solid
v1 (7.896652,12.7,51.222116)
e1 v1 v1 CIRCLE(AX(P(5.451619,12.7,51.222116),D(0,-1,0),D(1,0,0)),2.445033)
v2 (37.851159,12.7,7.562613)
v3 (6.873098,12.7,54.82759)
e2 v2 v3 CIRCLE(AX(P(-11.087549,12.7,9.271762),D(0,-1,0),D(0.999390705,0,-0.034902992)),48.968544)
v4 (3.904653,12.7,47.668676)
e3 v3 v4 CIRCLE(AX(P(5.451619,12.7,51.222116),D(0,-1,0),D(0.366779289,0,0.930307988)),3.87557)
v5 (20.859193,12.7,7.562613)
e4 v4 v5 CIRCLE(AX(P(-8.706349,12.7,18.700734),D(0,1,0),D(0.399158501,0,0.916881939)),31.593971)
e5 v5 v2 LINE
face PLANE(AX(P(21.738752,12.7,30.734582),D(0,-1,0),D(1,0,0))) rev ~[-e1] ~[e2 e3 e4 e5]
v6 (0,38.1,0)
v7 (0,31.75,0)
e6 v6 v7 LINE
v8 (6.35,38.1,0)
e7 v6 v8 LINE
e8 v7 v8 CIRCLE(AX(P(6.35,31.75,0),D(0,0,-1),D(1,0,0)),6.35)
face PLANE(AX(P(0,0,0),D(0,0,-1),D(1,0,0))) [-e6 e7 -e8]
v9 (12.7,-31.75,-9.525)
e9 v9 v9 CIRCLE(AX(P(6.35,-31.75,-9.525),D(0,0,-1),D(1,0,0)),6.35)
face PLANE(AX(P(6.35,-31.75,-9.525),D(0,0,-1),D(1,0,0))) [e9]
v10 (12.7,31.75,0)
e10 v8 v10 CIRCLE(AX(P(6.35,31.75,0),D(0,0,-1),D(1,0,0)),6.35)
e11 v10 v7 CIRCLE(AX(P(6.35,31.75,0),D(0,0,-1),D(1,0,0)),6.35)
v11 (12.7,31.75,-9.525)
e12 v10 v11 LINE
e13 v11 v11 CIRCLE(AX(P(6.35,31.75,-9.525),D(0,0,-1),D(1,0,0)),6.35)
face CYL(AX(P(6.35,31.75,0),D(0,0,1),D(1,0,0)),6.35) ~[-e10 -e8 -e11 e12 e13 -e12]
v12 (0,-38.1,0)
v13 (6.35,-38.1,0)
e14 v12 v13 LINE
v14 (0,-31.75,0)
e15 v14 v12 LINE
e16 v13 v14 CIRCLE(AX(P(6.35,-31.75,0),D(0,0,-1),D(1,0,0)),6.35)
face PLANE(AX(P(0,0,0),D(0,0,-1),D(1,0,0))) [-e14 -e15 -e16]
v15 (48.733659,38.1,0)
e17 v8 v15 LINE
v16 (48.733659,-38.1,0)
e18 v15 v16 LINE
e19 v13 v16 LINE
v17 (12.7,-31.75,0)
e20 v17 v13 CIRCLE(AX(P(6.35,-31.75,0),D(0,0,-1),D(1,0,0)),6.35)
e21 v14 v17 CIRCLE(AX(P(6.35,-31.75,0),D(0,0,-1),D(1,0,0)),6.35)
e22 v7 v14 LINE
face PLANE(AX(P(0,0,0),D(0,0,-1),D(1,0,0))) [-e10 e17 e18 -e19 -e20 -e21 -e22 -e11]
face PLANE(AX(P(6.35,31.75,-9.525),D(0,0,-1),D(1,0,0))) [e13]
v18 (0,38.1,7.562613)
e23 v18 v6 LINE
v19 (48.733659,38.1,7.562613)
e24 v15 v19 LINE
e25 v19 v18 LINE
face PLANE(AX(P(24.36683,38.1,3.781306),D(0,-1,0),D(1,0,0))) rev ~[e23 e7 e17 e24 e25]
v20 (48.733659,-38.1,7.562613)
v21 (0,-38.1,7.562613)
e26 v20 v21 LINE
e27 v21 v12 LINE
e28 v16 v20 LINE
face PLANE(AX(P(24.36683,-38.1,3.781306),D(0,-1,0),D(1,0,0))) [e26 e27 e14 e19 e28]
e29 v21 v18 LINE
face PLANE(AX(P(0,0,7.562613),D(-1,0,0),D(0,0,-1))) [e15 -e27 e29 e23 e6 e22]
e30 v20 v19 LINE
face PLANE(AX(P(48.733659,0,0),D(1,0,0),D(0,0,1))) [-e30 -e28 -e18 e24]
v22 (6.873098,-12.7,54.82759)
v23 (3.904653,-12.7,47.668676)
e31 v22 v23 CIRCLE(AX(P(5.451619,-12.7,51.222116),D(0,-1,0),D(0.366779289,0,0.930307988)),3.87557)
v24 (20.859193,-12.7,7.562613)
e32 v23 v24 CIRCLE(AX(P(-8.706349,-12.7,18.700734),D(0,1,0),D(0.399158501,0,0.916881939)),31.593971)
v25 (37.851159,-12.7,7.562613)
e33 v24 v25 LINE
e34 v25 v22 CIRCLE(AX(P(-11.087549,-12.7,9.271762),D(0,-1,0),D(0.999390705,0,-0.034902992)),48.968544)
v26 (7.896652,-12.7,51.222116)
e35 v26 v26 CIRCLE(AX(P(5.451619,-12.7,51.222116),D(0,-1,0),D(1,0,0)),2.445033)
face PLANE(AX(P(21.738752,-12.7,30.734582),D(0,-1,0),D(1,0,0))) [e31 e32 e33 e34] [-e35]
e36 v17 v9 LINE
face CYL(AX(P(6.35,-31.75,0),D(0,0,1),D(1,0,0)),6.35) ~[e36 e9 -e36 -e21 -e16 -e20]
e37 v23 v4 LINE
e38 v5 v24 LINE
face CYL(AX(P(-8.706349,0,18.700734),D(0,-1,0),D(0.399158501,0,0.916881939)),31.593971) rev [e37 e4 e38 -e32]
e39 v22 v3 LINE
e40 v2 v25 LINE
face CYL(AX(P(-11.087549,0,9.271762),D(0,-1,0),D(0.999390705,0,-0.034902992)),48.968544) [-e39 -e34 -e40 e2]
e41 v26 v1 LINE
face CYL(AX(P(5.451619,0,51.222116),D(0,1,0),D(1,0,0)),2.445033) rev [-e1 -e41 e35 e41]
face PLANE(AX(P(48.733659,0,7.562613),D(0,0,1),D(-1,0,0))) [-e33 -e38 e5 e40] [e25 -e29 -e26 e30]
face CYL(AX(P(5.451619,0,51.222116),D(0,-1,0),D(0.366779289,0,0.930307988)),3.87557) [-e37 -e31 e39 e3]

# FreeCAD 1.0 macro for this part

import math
import FreeCAD as App
import Part
import Sketcher
Q = App.Units.Quantity

doc = App.newDocument("Part")
body = doc.addObject("PartDesign::Body", "Body")

sketch1 = body.newObject("Sketcher::SketchObject", "Sketch")
sketch1.AttachmentSupport = (doc.getObject("XZ_Plane"), [""])
sketch1.MapMode = "FlatFace"
sketch1.addGeometry(Part.LineSegment(App.Vector(0, 8, 0), App.Vector(0, 0, 0)), False)
sketch1.addGeometry(Part.LineSegment(App.Vector(0, 0, 0), App.Vector(49, 0, 0)), False)
sketch1.addGeometry(Part.LineSegment(App.Vector(49, 0, 0), App.Vector(49, 8, 0)), False)
sketch1.addGeometry(Part.LineSegment(App.Vector(49, 8, 0), App.Vector(0, 8, 0)), False)
sketch1.addConstraint(Sketcher.Constraint("Coincident", 0, 2, 1, 1))
sketch1.addConstraint(Sketcher.Constraint("Coincident", 1, 2, 2, 1))
sketch1.addConstraint(Sketcher.Constraint("Coincident", 2, 2, 3, 1))
sketch1.addConstraint(Sketcher.Constraint("Coincident", 3, 2, 0, 1))
sketch1.addConstraint(Sketcher.Constraint("Vertical", 0))
sketch1.addConstraint(Sketcher.Constraint("Horizontal", 1))
sketch1.addConstraint(Sketcher.Constraint("Vertical", 2))
sketch1.addConstraint(Sketcher.Constraint("Horizontal", 3))
sketch1.addConstraint(Sketcher.Constraint("Coincident", 0, 2, -1, 1))
sketch1.addConstraint(Sketcher.Constraint("DistanceX", 1, 1, 1, 2, 48.733659))
sketch1.addConstraint(Sketcher.Constraint("DistanceY", 0, 2, 0, 1, 7.562613))
pad1 = body.newObject("PartDesign::Pad", "Pad")
pad1.Profile = sketch1
pad1.Length = Q("3 in")
pad1.Midplane = True

sketch2 = body.newObject("Sketcher::SketchObject", "Sketch001")
sketch2.AttachmentSupport = (doc.getObject("XZ_Plane"), [""])
sketch2.MapMode = "FlatFace"
sketch2.addGeometry(Part.ArcOfCircle(Part.Circle(App.Vector(-8.7, 18.7, 0), App.Vector(0, 0, 1), 31.6), math.radians(-21), math.radians(66)), False)
sketch2.addGeometry(Part.LineSegment(App.Vector(20.9, 7.6, 0), App.Vector(37.9, 7.6, 0)), False)
sketch2.addGeometry(Part.ArcOfCircle(Part.Circle(App.Vector(-11.1, 9.3, 0), App.Vector(0, 0, 1), 49), math.radians(-2), math.radians(68)), False)
sketch2.addGeometry(Part.ArcOfCircle(Part.Circle(App.Vector(5.5, 51.2, 0), App.Vector(0, 0, 1), 3.9), math.radians(68), math.radians(246)), False)
sketch2.addGeometry(Part.Circle(App.Vector(5.5, 51.2, 0), App.Vector(0, 0, 1), 2.4), False)
sketch2.addConstraint(Sketcher.Constraint("Coincident", 0, 1, 1, 1))
sketch2.addConstraint(Sketcher.Constraint("Coincident", 1, 2, 2, 1))
sketch2.addConstraint(Sketcher.Constraint("Tangent", 2, 2, 3, 1))
sketch2.addConstraint(Sketcher.Constraint("Tangent", 3, 2, 0, 2))
sketch2.addConstraint(Sketcher.Constraint("Horizontal", 1))
sketch2.addConstraint(Sketcher.Constraint("Coincident", 4, 3, 3, 3))
sketch2.addConstraint(Sketcher.Constraint("Radius", 0, 31.593971))
sketch2.addConstraint(Sketcher.Constraint("Radius", 3, 3.87557))
sketch2.addConstraint(Sketcher.Constraint("Diameter", 4, 4.890066))
sketch2.addConstraint(Sketcher.Constraint("Radius", 2, 48.968544))
sketch2.addConstraint(Sketcher.Constraint("DistanceX", -1, 1, 2, 2, 6.873098))
sketch2.addConstraint(Sketcher.Constraint("DistanceX", 2, 3, 0, 3, 2.3812))
sketch2.addConstraint(Sketcher.Constraint("DistanceX", 1, 1, 1, 2, 16.991966))
sketch2.addConstraint(Sketcher.Constraint("DistanceX", 0, 3, -1, 1, 8.706349))
sketch2.addConstraint(Sketcher.Constraint("DistanceY", -1, 1, 2, 3, 9.271762))
pad2 = body.newObject("PartDesign::Pad", "Pad001")
pad2.Profile = sketch2
pad2.Length = Q("1 in")
pad2.Midplane = True

sketch3 = body.newObject("Sketcher::SketchObject", "Sketch002")
sketch3.AttachmentSupport = (doc.getObject("XY_Plane"), [""])
sketch3.MapMode = "FlatFace"
sketch3.addGeometry(Part.Circle(App.Vector(6, 32, 0), App.Vector(0, 0, 1), 6), False)
sketch3.addGeometry(Part.Circle(App.Vector(6, -32, 0), App.Vector(0, 0, 1), 6), False)
sketch3.addConstraint(Sketcher.Constraint("Equal", 0, 1))
sketch3.addConstraint(Sketcher.Constraint("Symmetric", 0, 3, 1, 3, -1))
sketch3.addConstraint(Sketcher.Constraint("Diameter", 0, Q("0.5 in")))
sketch3.addConstraint(Sketcher.Constraint("DistanceY", 1, 3, 0, 3, Q("2.5 in")))
sketch3.addConstraint(Sketcher.Constraint("DistanceX", -1, 1, 0, 3, Q("0.25 in")))
pad3 = body.newObject("PartDesign::Pad", "Pad002")
pad3.Profile = sketch3
pad3.Length = Q("0.375 in")
pad3.Reversed = True

doc.recompute()
